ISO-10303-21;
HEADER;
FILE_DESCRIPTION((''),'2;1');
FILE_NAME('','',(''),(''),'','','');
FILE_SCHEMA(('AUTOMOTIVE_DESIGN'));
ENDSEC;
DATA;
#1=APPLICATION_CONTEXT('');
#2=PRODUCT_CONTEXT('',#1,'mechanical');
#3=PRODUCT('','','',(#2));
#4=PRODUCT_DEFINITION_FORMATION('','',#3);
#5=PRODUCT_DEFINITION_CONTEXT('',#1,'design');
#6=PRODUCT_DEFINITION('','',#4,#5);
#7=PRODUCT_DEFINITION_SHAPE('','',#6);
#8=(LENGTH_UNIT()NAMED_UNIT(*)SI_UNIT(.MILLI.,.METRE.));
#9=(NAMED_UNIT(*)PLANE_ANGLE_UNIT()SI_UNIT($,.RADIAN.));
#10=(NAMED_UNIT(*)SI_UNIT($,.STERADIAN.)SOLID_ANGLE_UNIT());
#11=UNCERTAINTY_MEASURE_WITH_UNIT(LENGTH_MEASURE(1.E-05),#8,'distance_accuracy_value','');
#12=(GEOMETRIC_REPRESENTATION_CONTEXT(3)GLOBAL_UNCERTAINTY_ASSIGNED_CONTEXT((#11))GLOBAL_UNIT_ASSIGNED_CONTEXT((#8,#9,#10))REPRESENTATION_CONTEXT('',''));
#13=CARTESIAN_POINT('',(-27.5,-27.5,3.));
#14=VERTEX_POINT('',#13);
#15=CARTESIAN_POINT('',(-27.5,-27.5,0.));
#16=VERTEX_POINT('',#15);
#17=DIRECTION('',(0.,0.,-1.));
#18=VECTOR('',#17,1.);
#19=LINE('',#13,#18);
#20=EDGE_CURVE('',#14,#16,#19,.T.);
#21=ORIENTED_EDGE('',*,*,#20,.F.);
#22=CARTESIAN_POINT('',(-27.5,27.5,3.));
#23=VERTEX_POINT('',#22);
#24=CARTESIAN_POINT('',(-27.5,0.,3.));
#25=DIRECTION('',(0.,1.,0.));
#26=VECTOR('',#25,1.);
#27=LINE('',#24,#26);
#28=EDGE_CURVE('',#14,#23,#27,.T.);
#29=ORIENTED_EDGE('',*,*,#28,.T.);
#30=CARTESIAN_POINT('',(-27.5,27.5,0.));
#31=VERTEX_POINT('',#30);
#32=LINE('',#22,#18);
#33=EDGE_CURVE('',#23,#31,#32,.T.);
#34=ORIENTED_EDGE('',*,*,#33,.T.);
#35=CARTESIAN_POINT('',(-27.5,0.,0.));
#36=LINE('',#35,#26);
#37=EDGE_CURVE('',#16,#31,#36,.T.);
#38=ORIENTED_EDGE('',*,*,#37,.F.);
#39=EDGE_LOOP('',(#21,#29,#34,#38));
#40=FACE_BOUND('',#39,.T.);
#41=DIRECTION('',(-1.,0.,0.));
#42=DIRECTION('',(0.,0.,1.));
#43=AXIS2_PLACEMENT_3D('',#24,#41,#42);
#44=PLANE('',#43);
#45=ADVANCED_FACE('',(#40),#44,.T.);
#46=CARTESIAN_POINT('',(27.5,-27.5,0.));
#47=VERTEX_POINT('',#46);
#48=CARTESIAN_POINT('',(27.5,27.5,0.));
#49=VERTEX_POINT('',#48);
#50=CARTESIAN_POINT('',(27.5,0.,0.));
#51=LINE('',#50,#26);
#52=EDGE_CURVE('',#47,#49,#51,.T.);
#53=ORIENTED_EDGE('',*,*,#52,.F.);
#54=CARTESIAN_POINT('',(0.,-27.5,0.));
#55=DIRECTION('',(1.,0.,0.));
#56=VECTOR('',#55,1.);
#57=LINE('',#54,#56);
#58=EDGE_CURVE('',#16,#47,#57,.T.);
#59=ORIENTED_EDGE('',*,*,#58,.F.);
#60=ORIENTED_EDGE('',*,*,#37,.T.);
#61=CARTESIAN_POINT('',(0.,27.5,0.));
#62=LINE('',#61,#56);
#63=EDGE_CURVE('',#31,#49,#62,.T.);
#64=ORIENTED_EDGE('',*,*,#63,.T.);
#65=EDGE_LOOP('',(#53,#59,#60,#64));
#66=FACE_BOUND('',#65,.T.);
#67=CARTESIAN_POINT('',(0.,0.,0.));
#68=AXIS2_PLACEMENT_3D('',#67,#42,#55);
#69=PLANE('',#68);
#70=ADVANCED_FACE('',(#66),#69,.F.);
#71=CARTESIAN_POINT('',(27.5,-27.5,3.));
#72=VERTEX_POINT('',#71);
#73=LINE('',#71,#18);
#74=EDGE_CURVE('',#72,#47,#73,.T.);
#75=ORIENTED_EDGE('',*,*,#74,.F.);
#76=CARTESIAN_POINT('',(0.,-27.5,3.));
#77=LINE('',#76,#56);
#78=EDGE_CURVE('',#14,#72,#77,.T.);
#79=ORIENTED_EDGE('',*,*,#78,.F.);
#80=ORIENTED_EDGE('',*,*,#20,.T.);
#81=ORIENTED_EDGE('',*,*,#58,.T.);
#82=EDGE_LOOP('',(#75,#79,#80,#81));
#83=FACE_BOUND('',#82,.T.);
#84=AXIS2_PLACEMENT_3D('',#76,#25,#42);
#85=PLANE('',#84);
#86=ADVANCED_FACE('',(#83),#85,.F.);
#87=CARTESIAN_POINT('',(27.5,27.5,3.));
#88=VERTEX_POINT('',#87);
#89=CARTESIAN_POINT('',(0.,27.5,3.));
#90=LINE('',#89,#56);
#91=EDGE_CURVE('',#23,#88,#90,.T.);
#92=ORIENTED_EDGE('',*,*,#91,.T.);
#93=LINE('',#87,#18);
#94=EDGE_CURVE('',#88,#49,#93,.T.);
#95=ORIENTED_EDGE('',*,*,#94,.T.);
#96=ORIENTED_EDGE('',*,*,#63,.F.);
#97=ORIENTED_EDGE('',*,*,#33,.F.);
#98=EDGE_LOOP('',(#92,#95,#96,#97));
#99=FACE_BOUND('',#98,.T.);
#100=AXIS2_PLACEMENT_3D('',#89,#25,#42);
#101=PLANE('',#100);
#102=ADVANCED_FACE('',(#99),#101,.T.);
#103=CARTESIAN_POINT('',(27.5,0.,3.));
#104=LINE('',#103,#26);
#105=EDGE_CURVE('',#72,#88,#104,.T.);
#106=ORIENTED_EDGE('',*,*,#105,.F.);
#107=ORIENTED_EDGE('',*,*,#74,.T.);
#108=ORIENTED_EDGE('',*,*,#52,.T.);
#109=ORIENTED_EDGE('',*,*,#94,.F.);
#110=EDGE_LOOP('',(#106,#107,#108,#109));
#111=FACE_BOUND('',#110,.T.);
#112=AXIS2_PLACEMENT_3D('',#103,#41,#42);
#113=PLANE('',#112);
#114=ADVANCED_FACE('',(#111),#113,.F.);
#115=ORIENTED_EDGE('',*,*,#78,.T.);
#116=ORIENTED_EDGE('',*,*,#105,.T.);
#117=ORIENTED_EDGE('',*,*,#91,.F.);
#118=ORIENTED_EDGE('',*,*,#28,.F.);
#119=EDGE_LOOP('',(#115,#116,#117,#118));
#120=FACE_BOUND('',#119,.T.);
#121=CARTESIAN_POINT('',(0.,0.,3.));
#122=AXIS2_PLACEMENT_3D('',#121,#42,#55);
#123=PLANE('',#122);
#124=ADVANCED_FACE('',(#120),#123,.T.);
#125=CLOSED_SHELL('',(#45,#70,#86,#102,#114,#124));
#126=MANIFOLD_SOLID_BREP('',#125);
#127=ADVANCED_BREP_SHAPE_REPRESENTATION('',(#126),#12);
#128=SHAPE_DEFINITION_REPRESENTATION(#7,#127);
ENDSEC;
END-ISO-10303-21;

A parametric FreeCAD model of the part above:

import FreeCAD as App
import Part
import Sketcher

V = App.Vector
Q = App.Units.Quantity

doc = App.newDocument("Part")
body = doc.addObject("PartDesign::Body", "Body")

# Sketch on XY plane
sketch1 = doc.addObject("Sketcher::SketchObject", "Sketch")
body.addObject(sketch1)
sketch1.AttachmentSupport = (doc.XY_Plane, [""])
sketch1.MapMode = "FlatFace"
sketch1.addGeometry([
    Part.LineSegment(V(-27.5, 27.5, 0), V(-27.5, -27.5, 0)),
    Part.LineSegment(V(-27.5, -27.5, 0), V(27.5, -27.5, 0)),
    Part.LineSegment(V(27.5, -27.5, 0), V(27.5, 27.5, 0)),
    Part.LineSegment(V(27.5, 27.5, 0), V(-27.5, 27.5, 0)),
], False)
sketch1.addConstraint([
    Sketcher.Constraint("Coincident", 0, 2, 1, 1),
    Sketcher.Constraint("Coincident", 1, 2, 2, 1),
    Sketcher.Constraint("Coincident", 2, 2, 3, 1),
    Sketcher.Constraint("Coincident", 3, 2, 0, 1),
    Sketcher.Constraint("Vertical", 0),
    Sketcher.Constraint("Horizontal", 1),
    Sketcher.Constraint("Vertical", 2),
    Sketcher.Constraint("Horizontal", 3),
    Sketcher.Constraint("Symmetric", 0, 2, 2, 2, -1, 1),
    Sketcher.Constraint("Equal", 3, 0),
    Sketcher.Constraint("DistanceX", 1, 1, 1, 2, Q("55 mm")),
])
pad1 = doc.addObject("PartDesign::Pad", "Pad")
body.addObject(pad1)
pad1.Profile = sketch1
pad1.Length = 3

doc.recompute()
